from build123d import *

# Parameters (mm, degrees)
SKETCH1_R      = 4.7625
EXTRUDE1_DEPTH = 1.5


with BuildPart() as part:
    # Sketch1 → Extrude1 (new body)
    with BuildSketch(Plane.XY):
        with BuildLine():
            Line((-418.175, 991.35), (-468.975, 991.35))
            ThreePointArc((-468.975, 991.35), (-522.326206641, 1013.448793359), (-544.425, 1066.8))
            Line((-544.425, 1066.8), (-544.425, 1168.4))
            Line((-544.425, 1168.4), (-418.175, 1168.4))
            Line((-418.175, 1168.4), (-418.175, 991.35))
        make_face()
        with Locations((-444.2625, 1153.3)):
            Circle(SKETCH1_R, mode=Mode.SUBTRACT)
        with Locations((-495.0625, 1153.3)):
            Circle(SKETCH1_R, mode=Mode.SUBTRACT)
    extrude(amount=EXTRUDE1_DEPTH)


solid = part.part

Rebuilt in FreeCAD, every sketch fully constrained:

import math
import FreeCAD as App
import Part
import Sketcher
from FreeCAD import Vector
Q = App.Units.Quantity

doc = App.newDocument("Part")
body = doc.addObject("PartDesign::Body", "Body")

sketch1 = doc.addObject("Sketcher::SketchObject", "Sketch")
body.addObject(sketch1)
sketch1.AttachmentSupport = (doc.XY_Plane, [""])
sketch1.MapMode = "FlatFace"
sketch1.addGeometry(Part.LineSegment(Vector(-469, 991.4, 0), Vector(-418.2, 991.4, 0)), False)
sketch1.addGeometry(Part.LineSegment(Vector(-418.2, 991.4, 0), Vector(-418.2, 1168.4, 0)), False)
sketch1.addGeometry(Part.LineSegment(Vector(-418.2, 1168.4, 0), Vector(-544.4, 1168.4, 0)), False)
sketch1.addGeometry(Part.LineSegment(Vector(-544.4, 1168.4, 0), Vector(-544.4, 1066.8, 0)), False)
sketch1.addGeometry(Part.ArcOfCircle(Part.Circle(Vector(-469, 1066.8, 0), Vector(0, 0, 1), 75.4), math.radians(180), math.radians(270)), False)
sketch1.addGeometry(Part.Circle(Vector(-444.3, 1153.3, 0), Vector(0, 0, 1), 4.8), False)
sketch1.addGeometry(Part.Circle(Vector(-495.1, 1153.3, 0), Vector(0, 0, 1), 4.8), False)
sketch1.addConstraint(Sketcher.Constraint("Coincident", 0, 2, 1, 1))
sketch1.addConstraint(Sketcher.Constraint("Coincident", 1, 2, 2, 1))
sketch1.addConstraint(Sketcher.Constraint("Coincident", 2, 2, 3, 1))
sketch1.addConstraint(Sketcher.Constraint("Tangent", 3, 2, 4, 1))
sketch1.addConstraint(Sketcher.Constraint("Tangent", 4, 2, 0, 1))
sketch1.addConstraint(Sketcher.Constraint("Horizontal", 0))
sketch1.addConstraint(Sketcher.Constraint("Vertical", 1))
sketch1.addConstraint(Sketcher.Constraint("Horizontal", 2))
sketch1.addConstraint(Sketcher.Constraint("Vertical", 3))
sketch1.addConstraint(Sketcher.Constraint("Equal", 5, 6))
sketch1.addConstraint(Sketcher.Constraint("Horizontal", 5, 3, 6, 3))
sketch1.addConstraint(Sketcher.Constraint("DistanceX", 0, 1, 0, 2, Q("2 in")))
sketch1.addConstraint(Sketcher.Constraint("DistanceY", 3, 2, 3, 1, Q("4 in")))
sketch1.addConstraint(Sketcher.Constraint("Diameter", 5, Q("0.375 in")))
sketch1.addConstraint(Sketcher.Constraint("DistanceY", -1, 1, 4, 3, Q("42 in")))
sketch1.addConstraint(Sketcher.Constraint("DistanceX", 6, 3, 5, 3, Q("2 in")))
sketch1.addConstraint(Sketcher.Constraint("Radius", 4, 75.45))
sketch1.addConstraint(Sketcher.Constraint("DistanceX", 4, 3, -1, 1, 468.975))
sketch1.addConstraint(Sketcher.Constraint("DistanceX", 5, 3, -1, 1, 444.2625))
sketch1.addConstraint(Sketcher.Constraint("DistanceY", -1, 1, 5, 3, 1153.3))
pad1 = doc.addObject("PartDesign::Pad", "Pad")
body.addObject(pad1)
pad1.Profile = sketch1
pad1.Length = 1.5

doc.recompute()
